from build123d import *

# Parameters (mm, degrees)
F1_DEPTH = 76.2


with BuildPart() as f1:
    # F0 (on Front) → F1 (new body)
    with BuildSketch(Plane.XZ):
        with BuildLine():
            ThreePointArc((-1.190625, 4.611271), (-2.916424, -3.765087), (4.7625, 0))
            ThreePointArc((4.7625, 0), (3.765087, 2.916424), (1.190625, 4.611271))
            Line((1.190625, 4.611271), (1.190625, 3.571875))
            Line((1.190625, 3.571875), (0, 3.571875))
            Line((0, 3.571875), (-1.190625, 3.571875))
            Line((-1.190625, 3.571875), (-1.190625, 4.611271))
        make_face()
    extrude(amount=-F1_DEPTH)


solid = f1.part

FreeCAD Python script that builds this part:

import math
import FreeCAD as App
import Part
import Sketcher
Q = App.Units.Quantity

doc = App.newDocument("Part")
params = doc.addObject("Spreadsheet::Sheet", "Params")
for row, (alias, value) in enumerate([
    ("sketch1_radius", "0.1875 in"),
    ("sketch1_width", "0.09375 in"),
    ("pad1_length", "3 in"),
], start=1):
    params.set(f"A{row}", alias)
    params.set(f"B{row}", "=" + value)
    params.setAlias(f"B{row}", alias)

body = doc.addObject("PartDesign::Body", "Body")

# Sketch on XZ plane
sketch1 = doc.addObject("Sketcher::SketchObject", "Sketch")
body.addObject(sketch1)
sketch1.AttachmentSupport = (doc.XZ_Plane, [""])
sketch1.MapMode = "FlatFace"
sketch1.addGeometry(Part.ArcOfCircle(Part.Circle(App.Vector(0, 0, 0), App.Vector(0, 0, 1), 4.7625), math.radians(104.477509), math.radians(360)), False)
sketch1.addGeometry(Part.ArcOfCircle(Part.Circle(App.Vector(0.000001, 0.000001, 0), App.Vector(0, 0, 1), 4.762499), math.radians(-0.000008), math.radians(75.522494)), False)
sketch1.addGeometry(Part.LineSegment(App.Vector(1.190625, 4.611271, 0), App.Vector(1.190625, 3.571875, 0)), False)
sketch1.addGeometry(Part.LineSegment(App.Vector(1.190625, 3.571875, 0), App.Vector(-1.190625, 3.571875, 0)), False)
sketch1.addGeometry(Part.LineSegment(App.Vector(-1.190625, 3.571875, 0), App.Vector(-1.190625, 4.611271, 0)), False)
sketch1.addConstraint(Sketcher.Constraint("Tangent", 0, 2, 1, 1))
sketch1.addConstraint(Sketcher.Constraint("Coincident", 1, 2, 2, 1))
sketch1.addConstraint(Sketcher.Constraint("Coincident", 2, 2, 3, 1))
sketch1.addConstraint(Sketcher.Constraint("Coincident", 3, 2, 4, 1))
sketch1.addConstraint(Sketcher.Constraint("Coincident", 4, 2, 0, 1))
sketch1.addConstraint(Sketcher.Constraint("Vertical", 2))
sketch1.addConstraint(Sketcher.Constraint("Horizontal", 3))
sketch1.addConstraint(Sketcher.Constraint("Vertical", 4))
sketch1.addConstraint(Sketcher.Constraint("Coincident", 0, 3, -1, 1))
sketch1.addConstraint(Sketcher.Constraint("Equal", 0, 1))
sketch1.addConstraint(Sketcher.Constraint("PointOnObject", 0, 2, -1))
sketch1.addConstraint(Sketcher.Constraint("Horizontal", 1, 2, 4, 2))
sketch1.addConstraint(Sketcher.Constraint("Radius", 0, Q("0.1875 in")))
sketch1.addConstraint(Sketcher.Constraint("DistanceX", 3, 2, 3, 1, Q("0.09375 in")))
sketch1.addConstraint(Sketcher.Constraint("DistanceY", -1, 1, 2, 2, Q("0.140625 in")))
sketch1.setExpression("Constraints[12]", "Params.sketch1_radius")
sketch1.setExpression("Constraints[13]", "Params.sketch1_width")
pad1 = doc.addObject("PartDesign::Pad", "Pad")
body.addObject(pad1)
pad1.Profile = sketch1
pad1.setExpression("Length", "Params.pad1_length")
pad1.Reversed = True

doc.recompute()
